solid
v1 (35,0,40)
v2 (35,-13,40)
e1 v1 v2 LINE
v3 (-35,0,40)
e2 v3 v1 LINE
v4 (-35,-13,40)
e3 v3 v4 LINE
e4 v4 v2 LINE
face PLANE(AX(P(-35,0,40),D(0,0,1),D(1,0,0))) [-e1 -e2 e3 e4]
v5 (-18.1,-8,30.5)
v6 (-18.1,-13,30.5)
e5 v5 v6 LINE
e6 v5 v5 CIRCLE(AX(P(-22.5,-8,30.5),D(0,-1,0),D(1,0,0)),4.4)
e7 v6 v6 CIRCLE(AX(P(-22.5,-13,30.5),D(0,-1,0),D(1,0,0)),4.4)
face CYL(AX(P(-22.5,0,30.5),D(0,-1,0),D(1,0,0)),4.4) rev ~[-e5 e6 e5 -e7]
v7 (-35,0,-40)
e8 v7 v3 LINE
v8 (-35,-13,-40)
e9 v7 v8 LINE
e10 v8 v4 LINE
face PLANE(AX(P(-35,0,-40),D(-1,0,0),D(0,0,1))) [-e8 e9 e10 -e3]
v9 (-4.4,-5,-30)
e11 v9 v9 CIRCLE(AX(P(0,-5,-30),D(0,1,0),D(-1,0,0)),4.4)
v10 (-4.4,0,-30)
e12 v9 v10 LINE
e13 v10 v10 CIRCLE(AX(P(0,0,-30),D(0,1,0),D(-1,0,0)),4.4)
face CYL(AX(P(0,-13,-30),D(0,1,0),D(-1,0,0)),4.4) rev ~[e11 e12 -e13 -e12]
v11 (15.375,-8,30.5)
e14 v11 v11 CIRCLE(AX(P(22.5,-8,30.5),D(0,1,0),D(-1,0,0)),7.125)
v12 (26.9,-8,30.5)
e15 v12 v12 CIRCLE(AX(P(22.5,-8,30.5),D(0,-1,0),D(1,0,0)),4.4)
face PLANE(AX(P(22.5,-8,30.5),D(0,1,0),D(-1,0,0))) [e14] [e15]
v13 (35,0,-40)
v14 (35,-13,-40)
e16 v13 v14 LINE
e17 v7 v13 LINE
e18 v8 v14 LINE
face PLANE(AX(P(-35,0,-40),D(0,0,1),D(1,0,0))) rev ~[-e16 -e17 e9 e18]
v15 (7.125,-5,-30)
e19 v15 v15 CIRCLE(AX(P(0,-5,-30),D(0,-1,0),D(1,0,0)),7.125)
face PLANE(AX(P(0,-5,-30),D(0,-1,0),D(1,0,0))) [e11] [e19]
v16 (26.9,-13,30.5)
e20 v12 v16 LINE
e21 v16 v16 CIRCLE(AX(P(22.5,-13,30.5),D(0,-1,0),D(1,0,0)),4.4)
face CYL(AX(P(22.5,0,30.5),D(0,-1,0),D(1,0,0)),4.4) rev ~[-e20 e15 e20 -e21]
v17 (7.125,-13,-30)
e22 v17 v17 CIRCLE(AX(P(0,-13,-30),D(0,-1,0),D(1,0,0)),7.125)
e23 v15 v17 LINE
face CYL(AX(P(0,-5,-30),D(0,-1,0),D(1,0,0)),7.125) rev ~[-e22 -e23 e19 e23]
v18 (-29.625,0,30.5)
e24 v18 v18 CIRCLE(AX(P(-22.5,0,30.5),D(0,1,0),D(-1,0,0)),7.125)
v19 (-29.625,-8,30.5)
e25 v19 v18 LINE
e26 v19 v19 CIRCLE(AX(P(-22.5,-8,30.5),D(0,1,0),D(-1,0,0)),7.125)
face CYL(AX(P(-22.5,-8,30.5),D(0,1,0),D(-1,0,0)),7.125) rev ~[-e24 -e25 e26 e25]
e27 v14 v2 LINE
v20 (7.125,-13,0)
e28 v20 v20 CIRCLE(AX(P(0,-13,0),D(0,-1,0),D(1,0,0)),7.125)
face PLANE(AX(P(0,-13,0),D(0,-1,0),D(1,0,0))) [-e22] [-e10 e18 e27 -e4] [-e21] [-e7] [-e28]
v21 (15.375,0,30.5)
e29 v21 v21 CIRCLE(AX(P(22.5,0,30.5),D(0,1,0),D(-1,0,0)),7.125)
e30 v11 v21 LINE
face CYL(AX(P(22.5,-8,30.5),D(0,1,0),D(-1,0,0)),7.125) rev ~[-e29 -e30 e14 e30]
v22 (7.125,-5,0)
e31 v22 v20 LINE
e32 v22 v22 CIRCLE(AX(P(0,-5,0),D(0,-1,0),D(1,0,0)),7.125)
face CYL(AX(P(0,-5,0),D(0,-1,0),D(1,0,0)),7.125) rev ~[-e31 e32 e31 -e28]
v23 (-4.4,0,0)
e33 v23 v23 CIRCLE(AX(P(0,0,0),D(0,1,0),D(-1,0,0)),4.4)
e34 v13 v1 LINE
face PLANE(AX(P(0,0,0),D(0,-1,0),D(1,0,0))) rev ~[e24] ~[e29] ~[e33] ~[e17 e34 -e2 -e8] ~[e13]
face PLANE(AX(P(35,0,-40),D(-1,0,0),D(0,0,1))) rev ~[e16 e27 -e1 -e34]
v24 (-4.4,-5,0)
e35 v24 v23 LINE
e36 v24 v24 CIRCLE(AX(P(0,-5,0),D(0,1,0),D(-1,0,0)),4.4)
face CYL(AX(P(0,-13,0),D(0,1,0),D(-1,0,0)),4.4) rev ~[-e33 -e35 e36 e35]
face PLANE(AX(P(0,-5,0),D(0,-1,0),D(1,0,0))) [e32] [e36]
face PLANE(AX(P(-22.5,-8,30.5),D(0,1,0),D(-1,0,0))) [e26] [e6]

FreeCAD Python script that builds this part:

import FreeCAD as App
import Part
import Sketcher
from FreeCAD import Vector


def add_polygon(sketch, points):
    """Adds a closed chain of lines whose ends are joined by coincident constraints."""
    first, n = sketch.GeometryCount, len(points)
    for a, b in zip(points, points[1:] + points[:1]):
        sketch.addGeometry(Part.LineSegment(App.Vector(*a, 0), App.Vector(*b, 0)), False)
    for i in range(n):
        sketch.addConstraint(Sketcher.Constraint("Coincident", first + i, 2, first + (i + 1) % n, 1))

doc = App.newDocument("Part")
body = doc.addObject("PartDesign::Body", "Body")

# Sketch on XZ plane
sketch1 = doc.addObject("Sketcher::SketchObject", "Sketch")
body.addObject(sketch1)
sketch1.AttachmentSupport = (doc.XZ_Plane, [""])
sketch1.MapMode = "FlatFace"
add_polygon(sketch1, [(-35, 40), (-35, -40), (35, -40), (35, 40)])  # lines 0-3
sketch1.addConstraint([
    Sketcher.Constraint("Vertical", 0),
    Sketcher.Constraint("Horizontal", 1),
    Sketcher.Constraint("Vertical", 2),
    Sketcher.Constraint("Horizontal", 3),
    Sketcher.Constraint("Symmetric", 0, 2, 2, 2, -1, 1),
    Sketcher.Constraint("DistanceX", 1, 1, 1, 2, 70.0),
    Sketcher.Constraint("DistanceY", 0, 2, 0, 1, 80.0),
])
pad1 = doc.addObject("PartDesign::Pad", "Pad")
body.addObject(pad1)
pad1.Profile = sketch1
pad1.Length = 13

# Sketch on XZ plane
sketch2 = doc.addObject("Sketcher::SketchObject", "Sketch001")
body.addObject(sketch2)
sketch2.AttachmentSupport = (doc.XZ_Plane, [""])
sketch2.MapMode = "FlatFace"
sketch2.addGeometry([
    Part.Circle(Vector(22.5, 30.5, 0), Vector(0, 0, 1), 4.4),
    Part.Circle(Vector(-22.5, 30.5, 0), Vector(0, 0, 1), 4.4),
], False)
sketch2.addConstraint([
    Sketcher.Constraint("Equal", 0, 1),
    Sketcher.Constraint("Symmetric", 0, 3, 1, 3, -2),
    Sketcher.Constraint("Diameter", 0, 8.8),
    Sketcher.Constraint("DistanceX", 1, 3, 0, 3, 45.0),
    Sketcher.Constraint("DistanceY", -1, 1, 0, 3, 30.5),
])
doc.recompute()
hole = doc.addObject("PartDesign::Hole", "Hole")
body.addObject(hole)
hole.Profile = sketch2
hole.ThreadType = "None"
hole.Diameter = 8.8
hole.DepthType = "Dimension"
hole.Depth = 22.75
hole.DrillPoint = "Angled"
hole.DrillPointAngle = 118
hole.HoleCutType = "Counterbore"
hole.HoleCutDiameter = 14.25
hole.HoleCutDepth = 8
hole.Reversed = True

# Sketch on XZ plane
sketch3 = doc.addObject("Sketcher::SketchObject", "Sketch002")
body.addObject(sketch3)
sketch3.AttachmentSupport = (doc.XZ_Plane, [""])
sketch3.MapMode = "FlatFace"
sketch3.AttachmentOffset = App.Placement(Vector(0, 0, 13), App.Rotation())
sketch3.addGeometry([
    Part.Circle(Vector(0, 0, 0), Vector(0, 0, 1), 4.4),
    Part.Circle(Vector(0, -30, 0), Vector(0, 0, 1), 4.4),
], False)
sketch3.addConstraint([
    Sketcher.Constraint("Coincident", 0, 3, -1, 1),
    Sketcher.Constraint("Equal", 0, 1),
    Sketcher.Constraint("PointOnObject", 1, 3, -2),
    Sketcher.Constraint("Diameter", 0, 8.8),
    Sketcher.Constraint("DistanceY", 1, 3, -1, 1, 30.0),
])
doc.recompute()
hole2 = doc.addObject("PartDesign::Hole", "Hole001")
body.addObject(hole2)
hole2.Profile = sketch3
hole2.ThreadType = "None"
hole2.Diameter = 8.8
hole2.DepthType = "Dimension"
hole2.Depth = 22.75
hole2.DrillPoint = "Angled"
hole2.DrillPointAngle = 118
hole2.HoleCutType = "Counterbore"
hole2.HoleCutDiameter = 14.25
hole2.HoleCutDepth = 8

doc.recompute()
